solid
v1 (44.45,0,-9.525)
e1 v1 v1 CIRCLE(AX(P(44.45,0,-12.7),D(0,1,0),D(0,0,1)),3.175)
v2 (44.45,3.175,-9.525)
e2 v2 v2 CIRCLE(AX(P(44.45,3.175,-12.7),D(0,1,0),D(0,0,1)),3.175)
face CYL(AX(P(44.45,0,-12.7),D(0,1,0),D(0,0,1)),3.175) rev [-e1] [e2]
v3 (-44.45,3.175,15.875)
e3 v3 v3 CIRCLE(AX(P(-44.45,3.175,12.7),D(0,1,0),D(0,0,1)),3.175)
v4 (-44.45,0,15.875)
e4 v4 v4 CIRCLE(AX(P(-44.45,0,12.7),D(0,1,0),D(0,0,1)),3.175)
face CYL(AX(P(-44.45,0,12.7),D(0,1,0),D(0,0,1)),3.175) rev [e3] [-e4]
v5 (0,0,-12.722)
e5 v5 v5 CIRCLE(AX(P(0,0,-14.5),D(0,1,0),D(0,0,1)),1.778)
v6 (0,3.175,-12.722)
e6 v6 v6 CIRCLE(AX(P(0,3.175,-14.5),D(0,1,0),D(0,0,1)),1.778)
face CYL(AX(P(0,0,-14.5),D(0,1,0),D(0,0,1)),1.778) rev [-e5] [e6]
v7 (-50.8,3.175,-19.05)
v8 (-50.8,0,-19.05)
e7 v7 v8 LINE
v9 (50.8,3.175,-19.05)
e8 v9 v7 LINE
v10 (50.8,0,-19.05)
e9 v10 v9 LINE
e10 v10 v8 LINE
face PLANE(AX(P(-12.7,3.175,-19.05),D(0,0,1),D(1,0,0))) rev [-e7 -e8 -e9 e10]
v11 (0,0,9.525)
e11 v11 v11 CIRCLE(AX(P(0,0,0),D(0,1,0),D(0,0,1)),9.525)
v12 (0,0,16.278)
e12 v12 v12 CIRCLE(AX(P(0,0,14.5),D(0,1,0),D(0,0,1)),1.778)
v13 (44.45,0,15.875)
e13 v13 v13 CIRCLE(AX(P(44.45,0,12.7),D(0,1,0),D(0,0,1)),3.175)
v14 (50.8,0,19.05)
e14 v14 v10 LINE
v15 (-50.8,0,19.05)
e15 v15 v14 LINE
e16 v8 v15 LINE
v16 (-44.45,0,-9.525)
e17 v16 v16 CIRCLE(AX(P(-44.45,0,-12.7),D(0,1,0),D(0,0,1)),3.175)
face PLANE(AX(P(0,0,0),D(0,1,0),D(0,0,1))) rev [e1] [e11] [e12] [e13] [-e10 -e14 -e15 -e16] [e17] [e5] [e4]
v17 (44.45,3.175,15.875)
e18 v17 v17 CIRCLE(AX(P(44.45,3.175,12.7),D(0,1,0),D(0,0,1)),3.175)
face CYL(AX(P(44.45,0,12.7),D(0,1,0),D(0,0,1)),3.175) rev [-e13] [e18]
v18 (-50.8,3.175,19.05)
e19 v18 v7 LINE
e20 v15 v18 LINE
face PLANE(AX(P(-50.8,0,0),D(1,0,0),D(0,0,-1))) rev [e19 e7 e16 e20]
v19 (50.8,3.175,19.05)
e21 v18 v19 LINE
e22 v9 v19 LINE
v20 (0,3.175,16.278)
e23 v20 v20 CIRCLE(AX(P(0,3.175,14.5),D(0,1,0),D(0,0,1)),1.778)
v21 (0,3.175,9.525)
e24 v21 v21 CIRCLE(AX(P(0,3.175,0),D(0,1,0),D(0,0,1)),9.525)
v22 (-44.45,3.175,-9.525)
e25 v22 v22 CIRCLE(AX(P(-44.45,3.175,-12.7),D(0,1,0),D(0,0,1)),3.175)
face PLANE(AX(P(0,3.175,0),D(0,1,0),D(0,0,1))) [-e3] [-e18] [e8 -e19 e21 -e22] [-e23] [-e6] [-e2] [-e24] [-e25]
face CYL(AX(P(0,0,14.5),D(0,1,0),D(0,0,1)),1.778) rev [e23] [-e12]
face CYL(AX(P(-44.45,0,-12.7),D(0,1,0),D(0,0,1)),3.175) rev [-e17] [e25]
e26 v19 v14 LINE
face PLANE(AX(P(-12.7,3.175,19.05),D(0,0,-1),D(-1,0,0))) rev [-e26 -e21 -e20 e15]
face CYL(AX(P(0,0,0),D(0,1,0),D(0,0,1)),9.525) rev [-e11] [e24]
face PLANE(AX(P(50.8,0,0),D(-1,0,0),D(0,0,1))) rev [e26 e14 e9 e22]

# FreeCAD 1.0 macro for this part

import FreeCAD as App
import Part
import Sketcher

V = App.Vector
Q = App.Units.Quantity

doc = App.newDocument("Part")
body = doc.addObject("PartDesign::Body", "Body")

sketch1 = doc.addObject("Sketcher::SketchObject", "Sketch")
body.addObject(sketch1)
sketch1.AttachmentSupport = (doc.XZ_Plane, [""])
sketch1.MapMode = "FlatFace"
sketch1.addGeometry(Part.LineSegment(V(-13, -19, 0), V(-13, 19, 0)), False)
sketch1.addGeometry(Part.LineSegment(V(-13, 19, 0), V(13, 19, 0)), False)
sketch1.addGeometry(Part.LineSegment(V(13, 19, 0), V(13, -19, 0)), False)
sketch1.addGeometry(Part.LineSegment(V(13, -19, 0), V(-13, -19, 0)), False)
sketch1.addConstraint(Sketcher.Constraint("Coincident", 0, 2, 1, 1))
sketch1.addConstraint(Sketcher.Constraint("Coincident", 1, 2, 2, 1))
sketch1.addConstraint(Sketcher.Constraint("Coincident", 2, 2, 3, 1))
sketch1.addConstraint(Sketcher.Constraint("Coincident", 3, 2, 0, 1))
sketch1.addConstraint(Sketcher.Constraint("Vertical", 0))
sketch1.addConstraint(Sketcher.Constraint("Horizontal", 1))
sketch1.addConstraint(Sketcher.Constraint("Vertical", 2))
sketch1.addConstraint(Sketcher.Constraint("Horizontal", 3))
sketch1.addConstraint(Sketcher.Constraint("Symmetric", 0, 2, 2, 2, -1, 1))
sketch1.addConstraint(Sketcher.Constraint("DistanceX", 1, 1, 1, 2, Q("1 in")))
sketch1.addConstraint(Sketcher.Constraint("DistanceY", 0, 1, 0, 2, Q("1.5 in")))
pad1 = doc.addObject("PartDesign::Pad", "Pad")
body.addObject(pad1)
pad1.Profile = sketch1
pad1.Length = Q("0.125 in")
pad1.Reversed = True

sketch2 = doc.addObject("Sketcher::SketchObject", "Sketch001")
body.addObject(sketch2)
sketch2.AttachmentSupport = (doc.XZ_Plane, [""])
sketch2.MapMode = "FlatFace"
sketch2.AttachmentOffset = App.Placement(V(0, 0, -0.125 * 25.4), App.Rotation())
sketch2.addGeometry(Part.Circle(V(0, 0, 0), V(0, 0, 1), 9.5), False)
sketch2.addGeometry(Part.Circle(V(0, 14.5, 0), V(0, 0, 1), 1.8), False)
sketch2.addGeometry(Part.Circle(V(0, -14.5, 0), V(0, 0, 1), 1.8), False)
sketch2.addConstraint(Sketcher.Constraint("Coincident", 0, 3, -1, 1))
sketch2.addConstraint(Sketcher.Constraint("Equal", 1, 2))
sketch2.addConstraint(Sketcher.Constraint("Symmetric", 1, 3, 2, 3, -1, 1))
sketch2.addConstraint(Sketcher.Constraint("PointOnObject", 1, 3, -2))
sketch2.addConstraint(Sketcher.Constraint("Diameter", 0, Q("0.75 in")))
sketch2.addConstraint(Sketcher.Constraint("Diameter", 1, Q("0.14 in")))
sketch2.addConstraint(Sketcher.Constraint("DistanceY", -1, 1, 1, 3, 14.5))
pocket1 = doc.addObject("PartDesign::Pocket", "Pocket")
body.addObject(pocket1)
pocket1.Profile = sketch2
pocket1.Length = Q("0.125 in")
pocket1.Reversed = True

sketch3 = doc.addObject("Sketcher::SketchObject", "Sketch002")
body.addObject(sketch3)
sketch3.AttachmentSupport = (doc.YZ_Plane, [""])
sketch3.MapMode = "FlatFace"
sketch3.AttachmentOffset = App.Placement(V(0, 0, -0.5 * 25.4), App.Rotation())
sketch3.addGeometry(Part.LineSegment(V(3.2, -19.1, 0), V(0, -19.1, 0)), False)
sketch3.addGeometry(Part.LineSegment(V(0, -19.1, 0), V(0, 19.1, 0)), False)
sketch3.addGeometry(Part.LineSegment(V(0, 19.1, 0), V(3.2, 19.1, 0)), False)
sketch3.addGeometry(Part.LineSegment(V(3.2, 19.1, 0), V(3.2, -19.1, 0)), False)
sketch3.addConstraint(Sketcher.Constraint("Coincident", 0, 2, 1, 1))
sketch3.addConstraint(Sketcher.Constraint("Coincident", 1, 2, 2, 1))
sketch3.addConstraint(Sketcher.Constraint("Coincident", 2, 2, 3, 1))
sketch3.addConstraint(Sketcher.Constraint("Coincident", 3, 2, 0, 1))
sketch3.addConstraint(Sketcher.Constraint("Horizontal", 0))
sketch3.addConstraint(Sketcher.Constraint("Vertical", 1))
sketch3.addConstraint(Sketcher.Constraint("Horizontal", 2))
sketch3.addConstraint(Sketcher.Constraint("Vertical", 3))
sketch3.addConstraint(Sketcher.Constraint("Symmetric", 0, 2, 1, 2, -1, 1))
sketch3.addConstraint(Sketcher.Constraint("DistanceY", 1, 1, 1, 2, Q("1.5 in")))
sketch3.addConstraint(Sketcher.Constraint("DistanceX", 0, 2, 0, 1, Q("0.125 in")))
pad2 = doc.addObject("PartDesign::Pad", "Pad001")
body.addObject(pad2)
pad2.Profile = sketch3
pad2.Length = Q("1.5 in")
pad2.Reversed = True

sketch4 = doc.addObject("Sketcher::SketchObject", "Sketch003")
body.addObject(sketch4)
sketch4.AttachmentSupport = (doc.YZ_Plane, [""])
sketch4.MapMode = "FlatFace"
sketch4.AttachmentOffset = App.Placement(V(0, 0, 0.5 * 25.4), App.Rotation())
sketch4.addGeometry(Part.LineSegment(V(3.2, 19.1, 0), V(0, 19.1, 0)), False)
sketch4.addGeometry(Part.LineSegment(V(0, 19.1, 0), V(0, -19.1, 0)), False)
sketch4.addGeometry(Part.LineSegment(V(0, -19.1, 0), V(3.2, -19.1, 0)), False)
sketch4.addGeometry(Part.LineSegment(V(3.2, -19.1, 0), V(3.2, 19.1, 0)), False)
sketch4.addConstraint(Sketcher.Constraint("Coincident", 0, 2, 1, 1))
sketch4.addConstraint(Sketcher.Constraint("Coincident", 1, 2, 2, 1))
sketch4.addConstraint(Sketcher.Constraint("Coincident", 2, 2, 3, 1))
sketch4.addConstraint(Sketcher.Constraint("Coincident", 3, 2, 0, 1))
sketch4.addConstraint(Sketcher.Constraint("Horizontal", 0))
sketch4.addConstraint(Sketcher.Constraint("Vertical", 1))
sketch4.addConstraint(Sketcher.Constraint("Horizontal", 2))
sketch4.addConstraint(Sketcher.Constraint("Vertical", 3))
sketch4.addConstraint(Sketcher.Constraint("Symmetric", 0, 2, 1, 2, -1, 1))
sketch4.addConstraint(Sketcher.Constraint("DistanceY", 1, 2, 1, 1, Q("1.5 in")))
sketch4.addConstraint(Sketcher.Constraint("DistanceX", 0, 2, 0, 1, Q("0.125 in")))
pad3 = doc.addObject("PartDesign::Pad", "Pad002")
body.addObject(pad3)
pad3.Profile = sketch4
pad3.Length = Q("1.5 in")

sketch5 = doc.addObject("Sketcher::SketchObject", "Sketch004")
body.addObject(sketch5)
sketch5.AttachmentSupport = (doc.XZ_Plane, [""])
sketch5.MapMode = "FlatFace"
sketch5.AttachmentOffset = App.Placement(V(0, 0, -0.125 * 25.4), App.Rotation())
sketch5.addGeometry(Part.Circle(V(-44.5, -12.7, 0), V(0, 0, 1), 3.2), False)
sketch5.addGeometry(Part.Circle(V(-44.5, 12.7, 0), V(0, 0, 1), 3.2), False)
sketch5.addGeometry(Part.Circle(V(44.5, 12.7, 0), V(0, 0, 1), 3.2), False)
sketch5.addGeometry(Part.Circle(V(44.5, -12.7, 0), V(0, 0, 1), 3.2), False)
sketch5.addConstraint(Sketcher.Constraint("Equal", 0, 1))
sketch5.addConstraint(Sketcher.Constraint("Equal", 1, 2))
sketch5.addConstraint(Sketcher.Constraint("Equal", 2, 3))
sketch5.addConstraint(Sketcher.Constraint("Symmetric", 0, 3, 2, 3, -1, 1))
sketch5.addConstraint(Sketcher.Constraint("Symmetric", 1, 3, 3, 3, -1, 1))
sketch5.addConstraint(Sketcher.Constraint("Symmetric", 1, 3, 2, 3, -2))
sketch5.addConstraint(Sketcher.Constraint("Diameter", 0, Q("0.25 in")))
sketch5.addConstraint(Sketcher.Constraint("DistanceY", 0, 3, 1, 3, Q("1 in")))
sketch5.addConstraint(Sketcher.Constraint("DistanceX", 1, 3, 2, 3, Q("3.5 in")))
pocket2 = doc.addObject("PartDesign::Pocket", "Pocket001")
body.addObject(pocket2)
pocket2.Profile = sketch5
pocket2.Type = "ThroughAll"
pocket2.Reversed = True

doc.recompute()
